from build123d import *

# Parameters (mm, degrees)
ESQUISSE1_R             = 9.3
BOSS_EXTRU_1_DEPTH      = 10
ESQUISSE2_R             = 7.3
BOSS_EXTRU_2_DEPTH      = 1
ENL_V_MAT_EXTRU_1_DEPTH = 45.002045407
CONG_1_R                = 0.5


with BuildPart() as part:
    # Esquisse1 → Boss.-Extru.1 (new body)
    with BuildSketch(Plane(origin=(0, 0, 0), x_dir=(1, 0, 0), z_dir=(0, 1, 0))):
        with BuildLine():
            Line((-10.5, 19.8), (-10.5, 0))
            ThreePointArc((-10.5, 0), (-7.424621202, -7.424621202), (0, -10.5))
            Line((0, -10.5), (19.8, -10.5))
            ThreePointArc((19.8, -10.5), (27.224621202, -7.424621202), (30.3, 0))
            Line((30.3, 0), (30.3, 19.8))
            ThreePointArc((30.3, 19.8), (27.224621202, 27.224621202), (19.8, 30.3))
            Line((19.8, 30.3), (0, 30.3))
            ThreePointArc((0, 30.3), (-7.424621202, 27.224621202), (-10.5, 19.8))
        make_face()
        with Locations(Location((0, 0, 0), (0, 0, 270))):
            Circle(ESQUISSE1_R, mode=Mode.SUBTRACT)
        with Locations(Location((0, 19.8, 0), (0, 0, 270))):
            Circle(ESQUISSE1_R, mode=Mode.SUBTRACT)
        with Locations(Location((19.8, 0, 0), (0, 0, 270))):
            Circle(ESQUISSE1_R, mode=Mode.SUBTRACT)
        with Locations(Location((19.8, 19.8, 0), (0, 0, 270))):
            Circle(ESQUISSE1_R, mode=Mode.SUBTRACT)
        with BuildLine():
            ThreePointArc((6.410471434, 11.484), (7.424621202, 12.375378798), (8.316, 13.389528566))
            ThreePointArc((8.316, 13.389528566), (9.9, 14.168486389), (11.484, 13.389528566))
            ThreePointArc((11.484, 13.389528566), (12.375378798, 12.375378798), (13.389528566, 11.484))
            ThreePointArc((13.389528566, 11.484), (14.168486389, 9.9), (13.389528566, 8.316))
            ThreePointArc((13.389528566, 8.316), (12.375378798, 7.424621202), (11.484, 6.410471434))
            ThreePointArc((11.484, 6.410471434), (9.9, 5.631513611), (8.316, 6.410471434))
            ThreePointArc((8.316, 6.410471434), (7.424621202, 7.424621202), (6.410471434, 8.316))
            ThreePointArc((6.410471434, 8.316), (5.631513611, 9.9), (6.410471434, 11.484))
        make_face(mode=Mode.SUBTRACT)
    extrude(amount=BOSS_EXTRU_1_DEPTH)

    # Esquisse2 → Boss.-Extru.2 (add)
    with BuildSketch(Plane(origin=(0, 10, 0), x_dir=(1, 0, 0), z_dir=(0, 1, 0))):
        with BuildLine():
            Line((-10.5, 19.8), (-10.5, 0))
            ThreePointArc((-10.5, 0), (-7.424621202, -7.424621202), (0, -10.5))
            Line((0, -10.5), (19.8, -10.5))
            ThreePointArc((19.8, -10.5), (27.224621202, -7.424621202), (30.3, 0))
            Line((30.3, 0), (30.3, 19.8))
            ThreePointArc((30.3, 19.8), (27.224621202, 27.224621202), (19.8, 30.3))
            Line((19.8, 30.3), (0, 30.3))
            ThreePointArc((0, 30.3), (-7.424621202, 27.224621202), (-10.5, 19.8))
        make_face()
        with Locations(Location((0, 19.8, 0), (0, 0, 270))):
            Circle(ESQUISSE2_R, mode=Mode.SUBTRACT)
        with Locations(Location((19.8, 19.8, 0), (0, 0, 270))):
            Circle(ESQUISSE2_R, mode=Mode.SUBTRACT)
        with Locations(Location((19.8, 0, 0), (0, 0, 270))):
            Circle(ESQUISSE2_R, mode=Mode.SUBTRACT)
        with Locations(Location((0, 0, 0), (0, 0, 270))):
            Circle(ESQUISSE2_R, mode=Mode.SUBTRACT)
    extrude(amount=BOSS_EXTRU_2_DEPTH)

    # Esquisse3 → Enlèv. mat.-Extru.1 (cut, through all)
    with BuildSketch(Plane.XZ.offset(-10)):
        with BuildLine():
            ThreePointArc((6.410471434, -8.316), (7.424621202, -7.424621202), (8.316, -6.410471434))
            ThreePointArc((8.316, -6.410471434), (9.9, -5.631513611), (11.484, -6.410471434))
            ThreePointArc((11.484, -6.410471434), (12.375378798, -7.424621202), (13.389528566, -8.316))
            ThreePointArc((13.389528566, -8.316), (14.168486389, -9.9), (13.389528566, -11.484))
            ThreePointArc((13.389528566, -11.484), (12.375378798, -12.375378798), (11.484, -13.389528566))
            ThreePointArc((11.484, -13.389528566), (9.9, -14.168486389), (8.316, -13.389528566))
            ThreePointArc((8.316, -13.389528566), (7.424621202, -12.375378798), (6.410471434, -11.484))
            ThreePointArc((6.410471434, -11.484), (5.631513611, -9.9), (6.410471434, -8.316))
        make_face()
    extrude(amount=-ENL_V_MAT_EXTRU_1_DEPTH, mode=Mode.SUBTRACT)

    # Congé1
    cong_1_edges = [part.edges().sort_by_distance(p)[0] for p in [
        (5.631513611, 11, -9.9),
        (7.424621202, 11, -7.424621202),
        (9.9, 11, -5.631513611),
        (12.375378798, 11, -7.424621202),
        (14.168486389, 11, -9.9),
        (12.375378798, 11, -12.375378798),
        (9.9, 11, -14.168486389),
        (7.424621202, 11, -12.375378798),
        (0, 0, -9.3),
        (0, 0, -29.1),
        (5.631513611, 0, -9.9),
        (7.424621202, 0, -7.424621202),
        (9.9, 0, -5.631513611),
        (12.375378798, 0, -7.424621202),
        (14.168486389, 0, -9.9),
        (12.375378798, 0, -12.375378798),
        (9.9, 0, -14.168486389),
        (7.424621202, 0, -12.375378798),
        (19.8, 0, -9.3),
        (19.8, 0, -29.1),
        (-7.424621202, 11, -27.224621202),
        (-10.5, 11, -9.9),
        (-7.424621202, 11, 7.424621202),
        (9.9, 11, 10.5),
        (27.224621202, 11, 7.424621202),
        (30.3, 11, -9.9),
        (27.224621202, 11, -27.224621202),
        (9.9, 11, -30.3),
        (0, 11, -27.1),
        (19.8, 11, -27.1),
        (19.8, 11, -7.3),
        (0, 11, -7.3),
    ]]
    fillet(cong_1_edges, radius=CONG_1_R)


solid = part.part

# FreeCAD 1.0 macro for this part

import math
import FreeCAD as App
import Part
import Sketcher

V = App.Vector
Q = App.Units.Quantity


def edges_at(feature, points):
    """Names of the edges that pass closest to the given points."""
    edges = feature.Shape.Edges
    near = lambda p: min(range(len(edges)), key=lambda i: edges[i].distToShape(Part.Vertex(*p))[0])
    return sorted({f"Edge{near(p) + 1}" for p in points})

doc = App.newDocument("Part")
body = doc.addObject("PartDesign::Body", "Body")

# Sketch on XZ plane
sketch1 = body.newObject("Sketcher::SketchObject", "Sketch")
sketch1.AttachmentSupport = (doc.getObject("XZ_Plane"), [""])
sketch1.MapMode = "FlatFace"
sketch1.addGeometry(Part.LineSegment(V(-10.5, -19.8, 0), V(-10.5, 0, 0)), False)
sketch1.addGeometry(Part.ArcOfCircle(Part.Circle(V(0, 0, 0), V(0, 0, 1), 10.5), math.radians(90), math.radians(180)), False)
sketch1.addGeometry(Part.LineSegment(V(0, 10.5, 0), V(19.8, 10.5, 0)), False)
sketch1.addGeometry(Part.ArcOfCircle(Part.Circle(V(19.8, 0, 0), V(0, 0, 1), 10.5), math.radians(0), math.radians(90)), False)
sketch1.addGeometry(Part.LineSegment(V(30.3, 0, 0), V(30.3, -19.8, 0)), False)
sketch1.addGeometry(Part.ArcOfCircle(Part.Circle(V(19.8, -19.8, 0), V(0, 0, 1), 10.5), math.radians(-90), math.radians(0)), False)
sketch1.addGeometry(Part.LineSegment(V(19.8, -30.3, 0), V(0, -30.3, 0)), False)
sketch1.addGeometry(Part.ArcOfCircle(Part.Circle(V(0, -19.8, 0), V(0, 0, 1), 10.5), math.radians(-180), math.radians(-90)), False)
sketch1.addGeometry(Part.Circle(V(0, 0, 0), V(0, 0, 1), 9.3), False)
sketch1.addGeometry(Part.Circle(V(19.8, 0, 0), V(0, 0, 1), 9.3), False)
sketch1.addGeometry(Part.Circle(V(0, -19.8, 0), V(0, 0, 1), 9.3), False)
sketch1.addGeometry(Part.ArcOfCircle(Part.Circle(V(7.631514, -9.9, 0), V(0, 0, 1), 2), math.radians(127.627191), math.radians(232.372809)), False)
sketch1.addGeometry(Part.ArcOfCircle(Part.Circle(V(0, -19.8, 0), V(0, 0, 1), 10.5), math.radians(37.627191), math.radians(52.372809)), False)
sketch1.addGeometry(Part.ArcOfCircle(Part.Circle(V(9.9, -12.168486, 0), V(0, 0, 1), 2), math.radians(-142.372809), math.radians(-37.627191)), False)
sketch1.addGeometry(Part.ArcOfCircle(Part.Circle(V(19.8, -19.8, 0), V(0, 0, 1), 10.5), math.radians(127.627191), math.radians(142.372809)), False)
sketch1.addGeometry(Part.ArcOfCircle(Part.Circle(V(12.168486, -9.9, 0), V(0, 0, 1), 2), math.radians(-52.372809), math.radians(52.372809)), False)
sketch1.addGeometry(Part.ArcOfCircle(Part.Circle(V(19.8, 0, 0), V(0, 0, 1), 10.5), math.radians(-142.372809), math.radians(-127.627191)), False)
sketch1.addGeometry(Part.ArcOfCircle(Part.Circle(V(9.9, -7.631514, 0), V(0, 0, 1), 2), math.radians(37.627191), math.radians(142.372809)), False)
sketch1.addGeometry(Part.ArcOfCircle(Part.Circle(V(0, 0, 0), V(0, 0, 1), 10.5), math.radians(-52.372809), math.radians(-37.627191)), False)
sketch1.addGeometry(Part.Circle(V(19.8, -19.8, 0), V(0, 0, 1), 9.3), False)
sketch1.addConstraint(Sketcher.Constraint("Tangent", 0, 2, 1, 2))
sketch1.addConstraint(Sketcher.Constraint("Tangent", 1, 1, 2, 1))
sketch1.addConstraint(Sketcher.Constraint("Tangent", 2, 2, 3, 2))
sketch1.addConstraint(Sketcher.Constraint("Tangent", 3, 1, 4, 1))
sketch1.addConstraint(Sketcher.Constraint("Tangent", 4, 2, 5, 2))
sketch1.addConstraint(Sketcher.Constraint("Tangent", 5, 1, 6, 1))
sketch1.addConstraint(Sketcher.Constraint("Tangent", 6, 2, 7, 2))
sketch1.addConstraint(Sketcher.Constraint("Tangent", 7, 1, 0, 1))
sketch1.addConstraint(Sketcher.Constraint("Tangent", 11, 2, 12, 2))
sketch1.addConstraint(Sketcher.Constraint("Tangent", 12, 1, 13, 1))
sketch1.addConstraint(Sketcher.Constraint("Tangent", 13, 2, 14, 2))
sketch1.addConstraint(Sketcher.Constraint("Tangent", 14, 1, 15, 1))
sketch1.addConstraint(Sketcher.Constraint("Tangent", 15, 2, 16, 2))
sketch1.addConstraint(Sketcher.Constraint("Tangent", 16, 1, 17, 1))
sketch1.addConstraint(Sketcher.Constraint("Tangent", 17, 2, 18, 2))
sketch1.addConstraint(Sketcher.Constraint("Tangent", 18, 1, 11, 1))
sketch1.addConstraint(Sketcher.Constraint("Vertical", 0))
sketch1.addConstraint(Sketcher.Constraint("Horizontal", 2))
sketch1.addConstraint(Sketcher.Constraint("Vertical", 4))
sketch1.addConstraint(Sketcher.Constraint("Horizontal", 6))
sketch1.addConstraint(Sketcher.Constraint("Coincident", 1, 3, -1, 1))
sketch1.addConstraint(Sketcher.Constraint("Coincident", 8, 3, -1, 1))
sketch1.addConstraint(Sketcher.Constraint("Coincident", 18, 3, -1, 1))
sketch1.addConstraint(Sketcher.Constraint("Coincident", 9, 3, 3, 3))
sketch1.addConstraint(Sketcher.Constraint("Coincident", 10, 3, 7, 3))
sketch1.addConstraint(Sketcher.Constraint("Coincident", 12, 3, 7, 3))
sketch1.addConstraint(Sketcher.Constraint("Coincident", 14, 3, 5, 3))
sketch1.addConstraint(Sketcher.Constraint("Coincident", 16, 3, 3, 3))
sketch1.addConstraint(Sketcher.Constraint("Coincident", 19, 3, 5, 3))
sketch1.addConstraint(Sketcher.Constraint("Equal", 1, 3))
sketch1.addConstraint(Sketcher.Constraint("Equal", 3, 5))
sketch1.addConstraint(Sketcher.Constraint("Equal", 5, 7))
sketch1.addConstraint(Sketcher.Constraint("Equal", 8, 9))
sketch1.addConstraint(Sketcher.Constraint("Equal", 9, 10))
sketch1.addConstraint(Sketcher.Constraint("Equal", 7, 12))
sketch1.addConstraint(Sketcher.Constraint("Equal", 11, 13))
sketch1.addConstraint(Sketcher.Constraint("Equal", 12, 14))
sketch1.addConstraint(Sketcher.Constraint("Equal", 13, 15))
sketch1.addConstraint(Sketcher.Constraint("Equal", 14, 16))
sketch1.addConstraint(Sketcher.Constraint("Equal", 15, 17))
sketch1.addConstraint(Sketcher.Constraint("Equal", 16, 18))
sketch1.addConstraint(Sketcher.Constraint("Equal", 10, 19))
sketch1.addConstraint(Sketcher.Constraint("Equal", 6, 0))
sketch1.addConstraint(Sketcher.Constraint("Radius", 11, Q("2 mm")))
sketch1.addConstraint(Sketcher.Constraint("Diameter", 8, Q("18.6 mm")))
sketch1.addConstraint(Sketcher.Constraint("Radius", 1, Q("10.5 mm")))
sketch1.addConstraint(Sketcher.Constraint("DistanceX", 2, 1, 2, 2, Q("19.8 mm")))
pad1 = body.newObject("PartDesign::Pad", "Pad")
pad1.Profile = sketch1
pad1.Length = 10
pad1.Reversed = True

# Sketch on XZ plane
sketch2 = body.newObject("Sketcher::SketchObject", "Sketch001")
sketch2.AttachmentSupport = (doc.getObject("XZ_Plane"), [""])
sketch2.MapMode = "FlatFace"
sketch2.AttachmentOffset = App.Placement(V(0, 0, -10), App.Rotation())
sketch2.addGeometry(Part.LineSegment(V(-10.5, -19.8, 0), V(-10.5, 0, 0)), False)
sketch2.addGeometry(Part.ArcOfCircle(Part.Circle(V(0, 0, 0), V(0, 0, 1), 10.5), math.radians(90), math.radians(180)), False)
sketch2.addGeometry(Part.LineSegment(V(0, 10.5, 0), V(19.8, 10.5, 0)), False)
sketch2.addGeometry(Part.ArcOfCircle(Part.Circle(V(19.8, 0, 0), V(0, 0, 1), 10.5), math.radians(0), math.radians(90)), False)
sketch2.addGeometry(Part.LineSegment(V(30.3, 0, 0), V(30.3, -19.8, 0)), False)
sketch2.addGeometry(Part.ArcOfCircle(Part.Circle(V(19.8, -19.8, 0), V(0, 0, 1), 10.5), math.radians(-90), math.radians(0)), False)
sketch2.addGeometry(Part.LineSegment(V(19.8, -30.3, 0), V(0, -30.3, 0)), False)
sketch2.addGeometry(Part.ArcOfCircle(Part.Circle(V(0, -19.8, 0), V(0, 0, 1), 10.5), math.radians(-180), math.radians(-90)), False)
sketch2.addGeometry(Part.Circle(V(0, 0, 0), V(0, 0, 1), 7.3), False)
sketch2.addGeometry(Part.Circle(V(19.8, 0, 0), V(0, 0, 1), 7.3), False)
sketch2.addGeometry(Part.Circle(V(0, -19.8, 0), V(0, 0, 1), 7.3), False)
sketch2.addGeometry(Part.Circle(V(19.8, -19.8, 0), V(0, 0, 1), 7.3), False)
sketch2.addConstraint(Sketcher.Constraint("Tangent", 0, 2, 1, 2))
sketch2.addConstraint(Sketcher.Constraint("Tangent", 1, 1, 2, 1))
sketch2.addConstraint(Sketcher.Constraint("Tangent", 2, 2, 3, 2))
sketch2.addConstraint(Sketcher.Constraint("Tangent", 3, 1, 4, 1))
sketch2.addConstraint(Sketcher.Constraint("Tangent", 4, 2, 5, 2))
sketch2.addConstraint(Sketcher.Constraint("Tangent", 5, 1, 6, 1))
sketch2.addConstraint(Sketcher.Constraint("Tangent", 6, 2, 7, 2))
sketch2.addConstraint(Sketcher.Constraint("Tangent", 7, 1, 0, 1))
sketch2.addConstraint(Sketcher.Constraint("Vertical", 0))
sketch2.addConstraint(Sketcher.Constraint("Horizontal", 2))
sketch2.addConstraint(Sketcher.Constraint("Vertical", 4))
sketch2.addConstraint(Sketcher.Constraint("Horizontal", 6))
sketch2.addConstraint(Sketcher.Constraint("Coincident", 1, 3, -1, 1))
sketch2.addConstraint(Sketcher.Constraint("Coincident", 8, 3, -1, 1))
sketch2.addConstraint(Sketcher.Constraint("Coincident", 9, 3, 3, 3))
sketch2.addConstraint(Sketcher.Constraint("Coincident", 10, 3, 7, 3))
sketch2.addConstraint(Sketcher.Constraint("Coincident", 11, 3, 5, 3))
sketch2.addConstraint(Sketcher.Constraint("Equal", 1, 3))
sketch2.addConstraint(Sketcher.Constraint("Equal", 3, 5))
sketch2.addConstraint(Sketcher.Constraint("Equal", 5, 7))
sketch2.addConstraint(Sketcher.Constraint("Equal", 8, 9))
sketch2.addConstraint(Sketcher.Constraint("Equal", 9, 10))
sketch2.addConstraint(Sketcher.Constraint("Equal", 10, 11))
sketch2.addConstraint(Sketcher.Constraint("Equal", 6, 0))
sketch2.addConstraint(Sketcher.Constraint("Diameter", 8, Q("14.6 mm")))
sketch2.addConstraint(Sketcher.Constraint("Radius", 1, Q("10.5 mm")))
sketch2.addConstraint(Sketcher.Constraint("DistanceX", 2, 1, 2, 2, Q("19.8 mm")))
pad2 = body.newObject("PartDesign::Pad", "Pad001")
pad2.Profile = sketch2
pad2.Length = 1
pad2.Reversed = True

# Sketch on XZ plane
sketch3 = body.newObject("Sketcher::SketchObject", "Sketch002")
sketch3.AttachmentSupport = (doc.getObject("XZ_Plane"), [""])
sketch3.MapMode = "FlatFace"
sketch3.AttachmentOffset = App.Placement(V(0, 0, -10), App.Rotation())
sketch3.addGeometry(Part.ArcOfCircle(Part.Circle(V(0, 0, 0), V(0, 0, 1), 10.5), math.radians(-52.372809), math.radians(-37.627191)), False)
sketch3.addGeometry(Part.ArcOfCircle(Part.Circle(V(7.631514, -9.9, 0), V(0, 0, 1), 2), math.radians(127.627191), math.radians(232.372809)), False)
sketch3.addGeometry(Part.ArcOfCircle(Part.Circle(V(0, -19.8, 0), V(0, 0, 1), 10.5), math.radians(37.627191), math.radians(52.372809)), False)
sketch3.addGeometry(Part.ArcOfCircle(Part.Circle(V(9.9, -12.168486, 0), V(0, 0, 1), 2), math.radians(-142.372809), math.radians(-37.627191)), False)
sketch3.addGeometry(Part.ArcOfCircle(Part.Circle(V(19.8, -19.8, 0), V(0, 0, 1), 10.5), math.radians(127.627191), math.radians(142.372809)), False)
sketch3.addGeometry(Part.ArcOfCircle(Part.Circle(V(12.168486, -9.9, 0), V(0, 0, 1), 2), math.radians(-52.372809), math.radians(52.372809)), False)
sketch3.addGeometry(Part.ArcOfCircle(Part.Circle(V(19.8, 0, 0), V(0, 0, 1), 10.5), math.radians(-142.372809), math.radians(-127.627191)), False)
sketch3.addGeometry(Part.ArcOfCircle(Part.Circle(V(9.9, -7.631514, 0), V(0, 0, 1), 2), math.radians(37.627191), math.radians(142.372809)), False)
sketch3.addConstraint(Sketcher.Constraint("Tangent", 0, 1, 1, 1))
sketch3.addConstraint(Sketcher.Constraint("Tangent", 1, 2, 2, 2))
sketch3.addConstraint(Sketcher.Constraint("Tangent", 2, 1, 3, 1))
sketch3.addConstraint(Sketcher.Constraint("Tangent", 3, 2, 4, 2))
sketch3.addConstraint(Sketcher.Constraint("Tangent", 4, 1, 5, 1))
sketch3.addConstraint(Sketcher.Constraint("Tangent", 5, 2, 6, 2))
sketch3.addConstraint(Sketcher.Constraint("Tangent", 6, 1, 7, 1))
sketch3.addConstraint(Sketcher.Constraint("Tangent", 7, 2, 0, 2))
sketch3.addConstraint(Sketcher.Constraint("Coincident", 0, 3, -1, 1))
sketch3.addConstraint(Sketcher.Constraint("Equal", 0, 2))
sketch3.addConstraint(Sketcher.Constraint("Equal", 1, 3))
sketch3.addConstraint(Sketcher.Constraint("Equal", 2, 4))
sketch3.addConstraint(Sketcher.Constraint("Equal", 3, 5))
sketch3.addConstraint(Sketcher.Constraint("Equal", 4, 6))
sketch3.addConstraint(Sketcher.Constraint("Equal", 5, 7))
sketch3.addConstraint(Sketcher.Constraint("PointOnObject", 2, 3, -2))
sketch3.addConstraint(Sketcher.Constraint("PointOnObject", 6, 3, -1))
sketch3.addConstraint(Sketcher.Constraint("Horizontal", 2, 3, 4, 3))
sketch3.addConstraint(Sketcher.Constraint("Horizontal", 1, 3, 5, 3))
sketch3.addConstraint(Sketcher.Constraint("Radius", 1, Q("2 mm")))
sketch3.addConstraint(Sketcher.Constraint("Radius", 0, Q("10.5 mm")))
sketch3.addConstraint(Sketcher.Constraint("DistanceY", 1, 3, -1, 1, Q("9.9 mm")))
sketch3.addConstraint(Sketcher.Constraint("DistanceX", -1, 1, 3, 3, Q("9.9 mm")))
pocket1 = body.newObject("PartDesign::Pocket", "Pocket")
pocket1.Profile = sketch3
pocket1.Type = "ThroughAll"
doc.recompute()

fillet = body.newObject("PartDesign::Fillet", "Fillet")
fillet.Base = (pocket1, edges_at(pocket1, [
    (5.632, 11, -9.9),
    (7.425, 11, -7.425),
    (9.9, 11, -5.632),
    (12.375, 11, -7.425),
    (14.168, 11, -9.9),
    (12.375, 11, -12.375),
    (9.9, 11, -14.168),
    (7.425, 11, -12.375),
    (0, 0, -9.3),
    (0, 0, -29.1),
    (5.632, 0, -9.9),
    (7.425, 0, -7.425),
    (9.9, 0, -5.632),
    (12.375, 0, -7.425),
    (14.168, 0, -9.9),
    (12.375, 0, -12.375),
    (9.9, 0, -14.168),
    (7.425, 0, -12.375),
    (19.8, 0, -9.3),
    (19.8, 0, -29.1),
    (-7.425, 11, -27.225),
    (-10.5, 11, -9.9),
    (-7.425, 11, 7.425),
    (9.9, 11, 10.5),
    (27.225, 11, 7.425),
    (30.3, 11, -9.9),
    (27.225, 11, -27.225),
    (9.9, 11, -30.3),
    (0, 11, -27.1),
    (19.8, 11, -27.1),
    (19.8, 11, -7.3),
    (0, 11, -7.3),
]))
fillet.Radius = 0.5

doc.recompute()
